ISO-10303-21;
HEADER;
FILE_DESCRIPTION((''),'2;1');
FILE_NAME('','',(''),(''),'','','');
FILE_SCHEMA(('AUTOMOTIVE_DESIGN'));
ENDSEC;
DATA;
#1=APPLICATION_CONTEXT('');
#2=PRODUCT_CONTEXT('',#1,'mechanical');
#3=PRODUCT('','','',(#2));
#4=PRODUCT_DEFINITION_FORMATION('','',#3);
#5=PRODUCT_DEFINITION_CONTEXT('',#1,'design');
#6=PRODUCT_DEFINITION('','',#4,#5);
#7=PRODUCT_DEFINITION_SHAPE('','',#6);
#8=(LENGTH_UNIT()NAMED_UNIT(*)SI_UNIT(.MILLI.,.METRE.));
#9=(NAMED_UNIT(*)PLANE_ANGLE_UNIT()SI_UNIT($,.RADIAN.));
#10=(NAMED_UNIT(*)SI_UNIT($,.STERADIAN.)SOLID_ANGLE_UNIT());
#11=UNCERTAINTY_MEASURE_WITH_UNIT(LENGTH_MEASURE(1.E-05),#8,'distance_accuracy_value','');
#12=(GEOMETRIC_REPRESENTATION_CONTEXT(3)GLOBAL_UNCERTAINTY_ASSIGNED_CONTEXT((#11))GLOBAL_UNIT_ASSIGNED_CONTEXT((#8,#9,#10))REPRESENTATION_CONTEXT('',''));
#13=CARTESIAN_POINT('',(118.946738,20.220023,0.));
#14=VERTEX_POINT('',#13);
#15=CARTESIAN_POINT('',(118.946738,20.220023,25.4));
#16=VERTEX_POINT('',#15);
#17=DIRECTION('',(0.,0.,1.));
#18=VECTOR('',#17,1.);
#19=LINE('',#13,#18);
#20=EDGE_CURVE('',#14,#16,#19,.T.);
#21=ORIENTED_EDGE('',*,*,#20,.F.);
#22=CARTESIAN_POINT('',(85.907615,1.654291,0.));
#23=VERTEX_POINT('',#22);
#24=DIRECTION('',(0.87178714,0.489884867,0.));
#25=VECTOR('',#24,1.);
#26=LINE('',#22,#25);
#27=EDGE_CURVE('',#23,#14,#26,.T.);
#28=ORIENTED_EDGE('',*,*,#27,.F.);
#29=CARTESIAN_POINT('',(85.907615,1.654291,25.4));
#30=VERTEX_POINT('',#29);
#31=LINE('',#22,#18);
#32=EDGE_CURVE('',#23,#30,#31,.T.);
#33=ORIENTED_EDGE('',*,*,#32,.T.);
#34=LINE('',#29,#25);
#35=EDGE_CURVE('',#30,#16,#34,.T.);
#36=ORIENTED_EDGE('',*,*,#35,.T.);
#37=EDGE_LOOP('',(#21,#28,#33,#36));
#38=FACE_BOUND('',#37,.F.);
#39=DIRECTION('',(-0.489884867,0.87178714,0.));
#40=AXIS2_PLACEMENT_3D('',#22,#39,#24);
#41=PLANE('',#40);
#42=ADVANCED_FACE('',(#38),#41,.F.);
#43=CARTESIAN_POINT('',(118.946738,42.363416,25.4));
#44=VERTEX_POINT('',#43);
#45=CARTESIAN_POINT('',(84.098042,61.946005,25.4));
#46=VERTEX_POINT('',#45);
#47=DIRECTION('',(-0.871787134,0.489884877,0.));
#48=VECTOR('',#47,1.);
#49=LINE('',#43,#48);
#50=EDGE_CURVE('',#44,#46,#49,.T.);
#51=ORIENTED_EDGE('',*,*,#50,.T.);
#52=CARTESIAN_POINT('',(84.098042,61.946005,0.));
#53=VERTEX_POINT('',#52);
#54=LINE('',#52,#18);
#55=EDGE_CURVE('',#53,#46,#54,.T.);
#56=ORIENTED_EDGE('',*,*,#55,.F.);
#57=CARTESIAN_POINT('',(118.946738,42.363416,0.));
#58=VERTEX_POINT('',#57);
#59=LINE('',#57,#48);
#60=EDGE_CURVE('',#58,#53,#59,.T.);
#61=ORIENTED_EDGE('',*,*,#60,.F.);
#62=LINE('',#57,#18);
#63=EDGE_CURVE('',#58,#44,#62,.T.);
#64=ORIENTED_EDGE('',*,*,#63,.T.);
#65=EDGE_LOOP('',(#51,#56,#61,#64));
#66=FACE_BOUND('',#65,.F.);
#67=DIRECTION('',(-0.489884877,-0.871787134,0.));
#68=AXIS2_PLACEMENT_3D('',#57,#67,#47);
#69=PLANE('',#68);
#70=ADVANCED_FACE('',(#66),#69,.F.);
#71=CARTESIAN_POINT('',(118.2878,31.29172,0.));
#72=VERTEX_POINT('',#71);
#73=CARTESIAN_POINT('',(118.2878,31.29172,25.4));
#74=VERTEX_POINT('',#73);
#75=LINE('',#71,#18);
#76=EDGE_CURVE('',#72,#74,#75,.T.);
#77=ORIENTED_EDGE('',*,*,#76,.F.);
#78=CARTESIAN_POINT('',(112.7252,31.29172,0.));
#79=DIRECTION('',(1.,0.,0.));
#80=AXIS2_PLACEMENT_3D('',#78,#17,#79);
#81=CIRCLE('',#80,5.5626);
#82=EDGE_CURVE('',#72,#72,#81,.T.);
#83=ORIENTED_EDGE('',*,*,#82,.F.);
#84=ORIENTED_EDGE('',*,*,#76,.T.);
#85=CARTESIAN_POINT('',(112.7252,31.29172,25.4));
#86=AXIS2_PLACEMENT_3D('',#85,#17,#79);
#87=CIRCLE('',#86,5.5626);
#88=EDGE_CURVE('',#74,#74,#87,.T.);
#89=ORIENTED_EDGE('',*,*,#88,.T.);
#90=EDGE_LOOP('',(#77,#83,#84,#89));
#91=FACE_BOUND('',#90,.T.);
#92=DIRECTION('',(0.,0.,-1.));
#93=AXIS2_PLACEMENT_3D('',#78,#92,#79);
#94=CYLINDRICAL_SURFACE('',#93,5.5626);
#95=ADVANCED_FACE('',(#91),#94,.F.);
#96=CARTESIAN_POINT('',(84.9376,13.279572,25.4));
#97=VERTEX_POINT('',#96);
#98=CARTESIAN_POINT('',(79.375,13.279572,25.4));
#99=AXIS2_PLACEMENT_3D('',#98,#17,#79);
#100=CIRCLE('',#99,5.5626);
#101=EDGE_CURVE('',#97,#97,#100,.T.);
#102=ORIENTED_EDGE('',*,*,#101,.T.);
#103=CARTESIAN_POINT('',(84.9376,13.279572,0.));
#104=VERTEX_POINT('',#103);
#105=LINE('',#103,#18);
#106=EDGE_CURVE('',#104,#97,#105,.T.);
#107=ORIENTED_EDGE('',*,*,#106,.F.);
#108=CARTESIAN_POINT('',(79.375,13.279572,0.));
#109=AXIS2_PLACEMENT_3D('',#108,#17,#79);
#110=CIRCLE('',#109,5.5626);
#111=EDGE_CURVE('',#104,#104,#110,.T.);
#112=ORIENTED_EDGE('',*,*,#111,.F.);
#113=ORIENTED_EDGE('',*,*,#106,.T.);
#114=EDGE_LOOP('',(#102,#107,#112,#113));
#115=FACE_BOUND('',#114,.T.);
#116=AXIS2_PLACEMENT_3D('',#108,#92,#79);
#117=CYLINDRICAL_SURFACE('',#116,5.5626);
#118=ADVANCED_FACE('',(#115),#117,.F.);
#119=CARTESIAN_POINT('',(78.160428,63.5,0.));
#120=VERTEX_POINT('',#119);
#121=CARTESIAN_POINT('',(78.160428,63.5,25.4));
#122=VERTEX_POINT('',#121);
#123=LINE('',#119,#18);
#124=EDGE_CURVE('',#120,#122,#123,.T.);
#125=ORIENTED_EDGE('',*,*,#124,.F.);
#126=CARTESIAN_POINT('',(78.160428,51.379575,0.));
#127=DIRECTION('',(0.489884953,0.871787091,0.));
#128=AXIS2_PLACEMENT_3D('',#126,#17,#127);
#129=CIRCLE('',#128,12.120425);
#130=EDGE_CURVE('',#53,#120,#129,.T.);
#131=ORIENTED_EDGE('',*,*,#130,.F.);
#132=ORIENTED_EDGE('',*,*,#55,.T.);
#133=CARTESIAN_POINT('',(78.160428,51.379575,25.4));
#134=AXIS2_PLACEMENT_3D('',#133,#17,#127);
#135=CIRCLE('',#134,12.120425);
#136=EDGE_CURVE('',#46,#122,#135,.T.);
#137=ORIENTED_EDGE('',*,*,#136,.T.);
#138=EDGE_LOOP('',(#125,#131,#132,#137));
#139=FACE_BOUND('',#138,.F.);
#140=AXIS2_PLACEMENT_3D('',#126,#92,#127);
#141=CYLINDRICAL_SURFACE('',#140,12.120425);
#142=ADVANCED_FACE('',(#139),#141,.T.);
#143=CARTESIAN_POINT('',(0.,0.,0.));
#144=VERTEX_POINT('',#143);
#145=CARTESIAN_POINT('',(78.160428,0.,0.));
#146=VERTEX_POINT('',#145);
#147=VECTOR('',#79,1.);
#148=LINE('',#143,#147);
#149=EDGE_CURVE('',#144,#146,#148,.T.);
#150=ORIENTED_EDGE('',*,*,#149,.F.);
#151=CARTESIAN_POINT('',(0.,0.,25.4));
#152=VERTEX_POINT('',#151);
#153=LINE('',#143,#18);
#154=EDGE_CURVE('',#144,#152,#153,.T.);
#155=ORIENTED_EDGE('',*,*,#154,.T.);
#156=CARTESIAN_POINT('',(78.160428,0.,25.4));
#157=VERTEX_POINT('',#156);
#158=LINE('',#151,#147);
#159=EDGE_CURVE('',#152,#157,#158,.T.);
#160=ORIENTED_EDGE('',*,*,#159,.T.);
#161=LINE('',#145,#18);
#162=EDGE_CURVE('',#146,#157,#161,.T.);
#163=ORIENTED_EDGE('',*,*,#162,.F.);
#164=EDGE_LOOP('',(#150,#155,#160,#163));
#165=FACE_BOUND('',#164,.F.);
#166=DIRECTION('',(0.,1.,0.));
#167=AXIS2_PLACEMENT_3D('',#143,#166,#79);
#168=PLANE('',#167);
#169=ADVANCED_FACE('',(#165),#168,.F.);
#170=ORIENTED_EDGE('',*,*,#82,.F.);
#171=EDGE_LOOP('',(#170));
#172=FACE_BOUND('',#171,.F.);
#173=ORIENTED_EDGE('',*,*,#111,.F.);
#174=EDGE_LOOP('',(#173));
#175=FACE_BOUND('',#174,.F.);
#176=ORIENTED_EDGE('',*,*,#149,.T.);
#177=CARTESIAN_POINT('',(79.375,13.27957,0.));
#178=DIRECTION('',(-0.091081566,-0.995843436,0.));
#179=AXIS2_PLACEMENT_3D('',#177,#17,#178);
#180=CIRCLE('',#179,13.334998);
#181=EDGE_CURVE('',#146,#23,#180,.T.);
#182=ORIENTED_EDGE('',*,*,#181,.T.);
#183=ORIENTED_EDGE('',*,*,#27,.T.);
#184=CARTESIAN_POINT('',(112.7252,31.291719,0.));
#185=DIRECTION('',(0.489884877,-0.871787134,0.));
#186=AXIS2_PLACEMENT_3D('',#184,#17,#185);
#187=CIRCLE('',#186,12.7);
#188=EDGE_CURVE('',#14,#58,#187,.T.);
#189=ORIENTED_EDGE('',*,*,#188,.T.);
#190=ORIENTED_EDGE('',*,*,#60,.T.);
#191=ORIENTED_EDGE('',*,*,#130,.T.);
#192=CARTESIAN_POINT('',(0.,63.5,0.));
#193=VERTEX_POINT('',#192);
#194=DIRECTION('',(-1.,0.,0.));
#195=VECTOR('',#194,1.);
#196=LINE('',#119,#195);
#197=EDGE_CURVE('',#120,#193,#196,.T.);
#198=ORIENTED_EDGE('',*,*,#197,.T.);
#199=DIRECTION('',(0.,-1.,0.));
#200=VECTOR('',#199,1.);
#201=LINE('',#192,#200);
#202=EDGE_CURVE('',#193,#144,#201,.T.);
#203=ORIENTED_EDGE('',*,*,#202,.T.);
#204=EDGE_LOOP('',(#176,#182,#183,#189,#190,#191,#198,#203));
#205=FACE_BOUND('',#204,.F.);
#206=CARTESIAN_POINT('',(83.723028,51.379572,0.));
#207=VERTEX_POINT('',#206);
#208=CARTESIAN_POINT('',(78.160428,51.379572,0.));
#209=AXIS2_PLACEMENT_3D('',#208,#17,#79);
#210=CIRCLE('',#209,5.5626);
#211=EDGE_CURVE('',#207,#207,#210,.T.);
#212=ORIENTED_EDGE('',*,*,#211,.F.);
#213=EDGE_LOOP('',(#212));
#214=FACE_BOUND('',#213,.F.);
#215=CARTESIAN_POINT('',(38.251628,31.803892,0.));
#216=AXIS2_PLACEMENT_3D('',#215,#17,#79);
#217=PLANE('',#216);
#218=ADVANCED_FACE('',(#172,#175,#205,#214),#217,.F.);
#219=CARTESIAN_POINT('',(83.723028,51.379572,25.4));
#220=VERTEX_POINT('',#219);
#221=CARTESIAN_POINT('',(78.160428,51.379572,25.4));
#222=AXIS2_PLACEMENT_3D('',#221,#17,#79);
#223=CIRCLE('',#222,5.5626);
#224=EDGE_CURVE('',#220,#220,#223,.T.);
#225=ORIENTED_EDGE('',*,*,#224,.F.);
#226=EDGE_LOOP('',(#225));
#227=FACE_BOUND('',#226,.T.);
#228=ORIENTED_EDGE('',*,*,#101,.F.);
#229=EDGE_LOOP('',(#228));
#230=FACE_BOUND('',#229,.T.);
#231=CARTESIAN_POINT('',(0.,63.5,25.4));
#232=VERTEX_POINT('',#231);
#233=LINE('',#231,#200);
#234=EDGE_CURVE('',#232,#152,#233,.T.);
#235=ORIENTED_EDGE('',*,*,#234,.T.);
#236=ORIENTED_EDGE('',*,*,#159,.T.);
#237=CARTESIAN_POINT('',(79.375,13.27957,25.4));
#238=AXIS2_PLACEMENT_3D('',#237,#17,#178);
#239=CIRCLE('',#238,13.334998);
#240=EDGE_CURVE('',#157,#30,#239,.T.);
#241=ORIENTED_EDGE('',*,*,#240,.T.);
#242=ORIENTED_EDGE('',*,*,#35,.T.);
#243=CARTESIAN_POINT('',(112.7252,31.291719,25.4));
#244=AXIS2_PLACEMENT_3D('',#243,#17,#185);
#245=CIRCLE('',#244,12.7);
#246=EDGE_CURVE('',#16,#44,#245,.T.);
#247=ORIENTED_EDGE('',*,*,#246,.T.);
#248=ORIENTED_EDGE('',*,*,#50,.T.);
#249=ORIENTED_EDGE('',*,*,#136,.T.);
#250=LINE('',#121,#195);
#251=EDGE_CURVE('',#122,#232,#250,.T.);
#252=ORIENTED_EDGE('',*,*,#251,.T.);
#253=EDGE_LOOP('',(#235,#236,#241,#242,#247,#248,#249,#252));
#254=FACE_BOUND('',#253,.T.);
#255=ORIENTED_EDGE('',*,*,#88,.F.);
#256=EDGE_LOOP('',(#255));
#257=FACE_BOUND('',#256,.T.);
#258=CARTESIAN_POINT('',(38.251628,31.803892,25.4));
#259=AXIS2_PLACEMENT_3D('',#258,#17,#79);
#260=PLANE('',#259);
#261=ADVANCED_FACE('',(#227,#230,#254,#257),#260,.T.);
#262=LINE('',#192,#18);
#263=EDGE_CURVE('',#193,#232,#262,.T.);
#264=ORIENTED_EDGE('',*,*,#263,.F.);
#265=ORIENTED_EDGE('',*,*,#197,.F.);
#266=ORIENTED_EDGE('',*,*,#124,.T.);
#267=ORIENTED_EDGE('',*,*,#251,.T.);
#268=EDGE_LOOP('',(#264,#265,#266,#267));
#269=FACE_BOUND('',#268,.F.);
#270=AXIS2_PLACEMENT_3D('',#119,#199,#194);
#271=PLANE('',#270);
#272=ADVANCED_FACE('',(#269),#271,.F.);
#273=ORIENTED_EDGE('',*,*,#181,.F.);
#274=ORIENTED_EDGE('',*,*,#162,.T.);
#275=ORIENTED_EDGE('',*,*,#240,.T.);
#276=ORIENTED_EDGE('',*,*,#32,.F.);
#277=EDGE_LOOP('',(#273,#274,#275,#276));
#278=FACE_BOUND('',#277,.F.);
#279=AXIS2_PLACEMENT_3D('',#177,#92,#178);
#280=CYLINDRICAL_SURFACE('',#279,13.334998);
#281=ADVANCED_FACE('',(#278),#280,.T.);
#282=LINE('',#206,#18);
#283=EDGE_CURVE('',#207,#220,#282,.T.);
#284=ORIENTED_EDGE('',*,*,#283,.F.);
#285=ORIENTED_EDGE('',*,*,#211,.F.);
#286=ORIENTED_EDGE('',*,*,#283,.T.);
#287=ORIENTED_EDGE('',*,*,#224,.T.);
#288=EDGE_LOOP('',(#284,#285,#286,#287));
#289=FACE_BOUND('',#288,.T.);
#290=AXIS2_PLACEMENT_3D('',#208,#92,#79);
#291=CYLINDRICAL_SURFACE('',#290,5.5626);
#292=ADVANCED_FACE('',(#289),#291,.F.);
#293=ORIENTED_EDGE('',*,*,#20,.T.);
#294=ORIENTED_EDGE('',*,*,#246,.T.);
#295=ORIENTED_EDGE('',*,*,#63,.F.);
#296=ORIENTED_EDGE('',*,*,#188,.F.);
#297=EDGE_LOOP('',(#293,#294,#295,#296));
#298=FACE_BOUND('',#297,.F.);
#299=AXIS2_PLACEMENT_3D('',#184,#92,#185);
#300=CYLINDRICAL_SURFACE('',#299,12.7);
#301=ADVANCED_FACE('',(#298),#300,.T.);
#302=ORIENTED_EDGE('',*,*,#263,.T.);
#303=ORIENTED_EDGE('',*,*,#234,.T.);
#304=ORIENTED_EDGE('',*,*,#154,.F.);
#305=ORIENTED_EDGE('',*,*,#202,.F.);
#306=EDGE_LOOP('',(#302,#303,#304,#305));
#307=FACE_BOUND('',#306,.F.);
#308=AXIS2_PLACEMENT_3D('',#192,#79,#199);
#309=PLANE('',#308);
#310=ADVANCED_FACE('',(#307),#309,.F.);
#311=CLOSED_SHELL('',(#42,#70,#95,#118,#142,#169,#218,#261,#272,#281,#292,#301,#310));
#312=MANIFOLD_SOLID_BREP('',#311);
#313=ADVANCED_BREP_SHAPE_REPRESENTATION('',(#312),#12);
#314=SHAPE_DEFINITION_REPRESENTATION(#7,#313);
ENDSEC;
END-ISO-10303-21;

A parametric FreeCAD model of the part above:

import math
import FreeCAD as App
import Part
import Sketcher

V = App.Vector
Q = App.Units.Quantity

doc = App.newDocument("Part")
body = doc.addObject("PartDesign::Body", "Body")

# Sketch on XY plane
sketch1 = body.newObject("Sketcher::SketchObject", "Sketch")
sketch1.AttachmentSupport = (doc.getObject("XY_Plane"), [""])
sketch1.MapMode = "FlatFace"
sketch1.addGeometry([
    Part.LineSegment(V(78, 64, 0), V(0, 64, 0)),  # 0
    Part.LineSegment(V(0, 64, 0), V(0, 0, 0)),  # 1
    Part.LineSegment(V(0, 0, 0), V(78, 0, 0)),  # 2
    Part.ArcOfCircle(Part.Circle(V(79, 13, 0), V(0, 0, 1), 13), math.radians(-95), math.radians(-61)),  # 3
    Part.LineSegment(V(86, 2, 0), V(119, 20, 0)),  # 4
    Part.ArcOfCircle(Part.Circle(V(113, 31, 0), V(0, 0, 1), 13), math.radians(-61), math.radians(61)),  # 5
    Part.LineSegment(V(119, 42, 0), V(84, 62, 0)),  # 6
    Part.ArcOfCircle(Part.Circle(V(78, 51, 0), V(0, 0, 1), 12), math.radians(61), math.radians(90)),  # 7
    Part.Circle(V(79, 13, 0), V(0, 0, 1), 6),  # 8
    Part.Circle(V(113, 31, 0), V(0, 0, 1), 6),  # 9
    Part.Circle(V(78, 51, 0), V(0, 0, 1), 6),  # 10
], False)
sketch1.addConstraint([
    Sketcher.Constraint("Coincident", 0, 2, 1, 1),
    Sketcher.Constraint("Coincident", 1, 2, 2, 1),
    Sketcher.Constraint("Coincident", 2, 2, 3, 1),
    Sketcher.Constraint("Tangent", 3, 2, 4, 1),
    Sketcher.Constraint("Tangent", 4, 2, 5, 1),
    Sketcher.Constraint("Tangent", 5, 2, 6, 1),
    Sketcher.Constraint("Tangent", 6, 2, 7, 1),
    Sketcher.Constraint("Tangent", 7, 2, 0, 1),
    Sketcher.Constraint("Horizontal", 0),
    Sketcher.Constraint("Vertical", 1),
    Sketcher.Constraint("Horizontal", 2),
    Sketcher.Constraint("Coincident", 1, 2, -1, 1),
    Sketcher.Constraint("Coincident", 8, 3, 3, 3),
    Sketcher.Constraint("Coincident", 9, 3, 5, 3),
    Sketcher.Constraint("Coincident", 10, 3, 7, 3),
    Sketcher.Constraint("Equal", 8, 9),
    Sketcher.Constraint("Equal", 9, 10),
    Sketcher.Constraint("Vertical", 10, 3, 2, 2),
    Sketcher.Constraint("Vertical", 4, 2, 5, 2),
    Sketcher.Constraint("Radius", 5, Q("0.5 in")),
    Sketcher.Constraint("Diameter", 8, Q("0.438 in")),
    Sketcher.Constraint("DistanceY", 1, 2, 1, 1, Q("2.5 in")),
    Sketcher.Constraint("Radius", 3, Q("0.5249999 in")),
    Sketcher.Constraint("DistanceY", 3, 3, 7, 3, Q("1.5000002 in")),
    Sketcher.Constraint("DistanceX", -1, 1, 3, 3, Q("3.125 in")),
    Sketcher.Constraint("DistanceX", -1, 1, 5, 3, Q("4.438 in")),
    Sketcher.Constraint("Radius", 7, 12.120425),
])
pad1 = body.newObject("PartDesign::Pad", "Pad")
pad1.Profile = sketch1
pad1.Length = Q("1 in")

doc.recompute()
